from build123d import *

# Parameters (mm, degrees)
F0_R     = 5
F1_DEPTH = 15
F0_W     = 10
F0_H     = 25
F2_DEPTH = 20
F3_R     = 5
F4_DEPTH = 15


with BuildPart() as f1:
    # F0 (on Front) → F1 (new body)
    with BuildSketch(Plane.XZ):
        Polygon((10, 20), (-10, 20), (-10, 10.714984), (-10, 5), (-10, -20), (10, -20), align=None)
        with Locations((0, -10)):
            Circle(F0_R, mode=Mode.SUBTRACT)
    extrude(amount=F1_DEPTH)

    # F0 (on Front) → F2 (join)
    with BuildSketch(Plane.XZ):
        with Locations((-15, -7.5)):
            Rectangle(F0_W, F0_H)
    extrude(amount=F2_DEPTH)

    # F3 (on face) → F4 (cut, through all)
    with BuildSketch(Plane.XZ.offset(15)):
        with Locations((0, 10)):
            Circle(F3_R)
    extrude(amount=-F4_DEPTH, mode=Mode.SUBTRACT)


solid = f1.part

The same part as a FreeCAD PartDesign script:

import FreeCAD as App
import Part
import Sketcher
from FreeCAD import Vector
Q = App.Units.Quantity


def add_polygon(sketch, points):
    """Adds a closed chain of lines whose ends are joined by coincident constraints."""
    first, n = sketch.GeometryCount, len(points)
    for a, b in zip(points, points[1:] + points[:1]):
        sketch.addGeometry(Part.LineSegment(App.Vector(*a, 0), App.Vector(*b, 0)), False)
    for i in range(n):
        sketch.addConstraint(Sketcher.Constraint("Coincident", first + i, 2, first + (i + 1) % n, 1))

doc = App.newDocument("Part")
body = doc.addObject("PartDesign::Body", "Body")

sketch1 = body.newObject("Sketcher::SketchObject", "Sketch")
sketch1.AttachmentSupport = (doc.getObject("XZ_Plane"), [""])
sketch1.MapMode = "FlatFace"
add_polygon(sketch1, [(10, 20), (-10, 20), (-10, -20), (10, -20)])
sketch1.addGeometry(Part.Circle(Vector(0, -10, 0), Vector(0, 0, 1), 5), False)
sketch1.addConstraint(Sketcher.Constraint("Horizontal", 0))
sketch1.addConstraint(Sketcher.Constraint("Vertical", 1))
sketch1.addConstraint(Sketcher.Constraint("Horizontal", 2))
sketch1.addConstraint(Sketcher.Constraint("Vertical", 3))
sketch1.addConstraint(Sketcher.Constraint("Symmetric", 0, 2, 2, 2, -1, 1))
sketch1.addConstraint(Sketcher.Constraint("PointOnObject", 4, 3, -2))
sketch1.addConstraint(Sketcher.Constraint("Diameter", 4, Q("10 mm")))
sketch1.addConstraint(Sketcher.Constraint("DistanceX", 0, 2, 0, 1, Q("20 mm")))
sketch1.addConstraint(Sketcher.Constraint("DistanceY", 1, 2, 1, 1, Q("40 mm")))
sketch1.addConstraint(Sketcher.Constraint("DistanceY", 4, 3, -1, 1, Q("10 mm")))
pad1 = body.newObject("PartDesign::Pad", "Pad")
pad1.Profile = sketch1
pad1.Length = 15

sketch2 = body.newObject("Sketcher::SketchObject", "Sketch001")
sketch2.AttachmentSupport = (doc.getObject("XZ_Plane"), [""])
sketch2.MapMode = "FlatFace"
add_polygon(sketch2, [(-20, 5), (-20, -20), (-10, -20), (-10, 5)])
sketch2.addConstraint(Sketcher.Constraint("Vertical", 0))
sketch2.addConstraint(Sketcher.Constraint("Horizontal", 1))
sketch2.addConstraint(Sketcher.Constraint("Vertical", 2))
sketch2.addConstraint(Sketcher.Constraint("Horizontal", 3))
sketch2.addConstraint(Sketcher.Constraint("DistanceX", 1, 1, 1, 2, Q("10 mm")))
sketch2.addConstraint(Sketcher.Constraint("DistanceY", 0, 2, 0, 1, Q("25 mm")))
sketch2.addConstraint(Sketcher.Constraint("DistanceX", 0, 2, -1, 1, Q("20 mm")))
sketch2.addConstraint(Sketcher.Constraint("DistanceY", 0, 2, -1, 1, Q("20 mm")))
pad2 = body.newObject("PartDesign::Pad", "Pad001")
pad2.Profile = sketch2
pad2.Length = 20

sketch3 = body.newObject("Sketcher::SketchObject", "Sketch002")
sketch3.AttachmentSupport = (doc.getObject("XZ_Plane"), [""])
sketch3.MapMode = "FlatFace"
sketch3.AttachmentOffset = App.Placement(Vector(0, 0, 15), App.Rotation())
sketch3.addGeometry(Part.Circle(Vector(0, 10, 0), Vector(0, 0, 1), 5), False)
sketch3.addConstraint(Sketcher.Constraint("PointOnObject", 0, 3, -2))
sketch3.addConstraint(Sketcher.Constraint("Diameter", 0, Q("10 mm")))
sketch3.addConstraint(Sketcher.Constraint("DistanceY", -1, 1, 0, 3, Q("10 mm")))
pocket1 = body.newObject("PartDesign::Pocket", "Pocket")
pocket1.Profile = sketch3
pocket1.Type = "ThroughAll"

doc.recompute()
